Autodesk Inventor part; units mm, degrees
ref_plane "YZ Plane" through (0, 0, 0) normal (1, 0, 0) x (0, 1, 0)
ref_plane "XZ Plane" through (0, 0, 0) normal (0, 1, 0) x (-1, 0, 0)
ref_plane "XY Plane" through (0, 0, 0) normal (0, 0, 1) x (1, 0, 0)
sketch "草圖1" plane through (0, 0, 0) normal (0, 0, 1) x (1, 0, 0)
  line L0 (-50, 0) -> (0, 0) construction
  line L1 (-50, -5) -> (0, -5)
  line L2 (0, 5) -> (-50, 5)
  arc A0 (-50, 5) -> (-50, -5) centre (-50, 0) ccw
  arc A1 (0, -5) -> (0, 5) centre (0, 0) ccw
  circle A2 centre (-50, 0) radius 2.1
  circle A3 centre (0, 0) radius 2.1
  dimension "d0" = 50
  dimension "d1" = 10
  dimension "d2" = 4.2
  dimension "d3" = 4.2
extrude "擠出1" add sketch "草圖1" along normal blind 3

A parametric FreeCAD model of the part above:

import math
import FreeCAD as App
import Part
import Sketcher

doc = App.newDocument("Part")
params = doc.addObject("Spreadsheet::Sheet", "Params")
for row, (alias, value) in enumerate([
    ("sketch1_radius", "5 mm"),
    ("sketch1_diameter", "4.2 mm"),
    ("sketch1_width", "50 mm"),
    ("pad1_length", "3 mm"),
], start=1):
    params.set(f"A{row}", alias)
    params.set(f"B{row}", "=" + value)
    params.setAlias(f"B{row}", alias)

body = doc.addObject("PartDesign::Body", "Body")

sketch1 = body.newObject("Sketcher::SketchObject", "Sketch")
sketch1.AttachmentSupport = (doc.getObject("XY_Plane"), [""])
sketch1.MapMode = "FlatFace"
sketch1.addGeometry(Part.ArcOfCircle(Part.Circle(App.Vector(-50, 0, 0), App.Vector(0, 0, 1), 5), math.radians(90), math.radians(270)), False)
sketch1.addGeometry(Part.LineSegment(App.Vector(-50, -5, 0), App.Vector(0, -5, 0)), False)
sketch1.addGeometry(Part.ArcOfCircle(Part.Circle(App.Vector(0, 0, 0), App.Vector(0, 0, 1), 5), math.radians(-90), math.radians(90)), False)
sketch1.addGeometry(Part.LineSegment(App.Vector(0, 5, 0), App.Vector(-50, 5, 0)), False)
sketch1.addGeometry(Part.Circle(App.Vector(-50, 0, 0), App.Vector(0, 0, 1), 2.1), False)
sketch1.addGeometry(Part.Circle(App.Vector(0, 0, 0), App.Vector(0, 0, 1), 2.1), False)
sketch1.addConstraint(Sketcher.Constraint("Tangent", 0, 2, 1, 1))
sketch1.addConstraint(Sketcher.Constraint("Tangent", 1, 2, 2, 1))
sketch1.addConstraint(Sketcher.Constraint("Tangent", 2, 2, 3, 1))
sketch1.addConstraint(Sketcher.Constraint("Tangent", 3, 2, 0, 1))
sketch1.addConstraint(Sketcher.Constraint("Horizontal", 1))
sketch1.addConstraint(Sketcher.Constraint("Horizontal", 3))
sketch1.addConstraint(Sketcher.Constraint("Coincident", 2, 3, -1, 1))
sketch1.addConstraint(Sketcher.Constraint("Coincident", 5, 3, -1, 1))
sketch1.addConstraint(Sketcher.Constraint("Coincident", 4, 3, 0, 3))
sketch1.addConstraint(Sketcher.Constraint("Equal", 4, 5))
sketch1.addConstraint(Sketcher.Constraint("Radius", 0, 5.0))
sketch1.addConstraint(Sketcher.Constraint("Diameter", 4, 4.2))
sketch1.addConstraint(Sketcher.Constraint("DistanceX", 1, 1, 1, 2, 50.0))
sketch1.setExpression("Constraints[10]", "Params.sketch1_radius")
sketch1.setExpression("Constraints[11]", "Params.sketch1_diameter")
sketch1.setExpression("Constraints[12]", "Params.sketch1_width")
pad1 = body.newObject("PartDesign::Pad", "Pad")
pad1.Profile = sketch1
pad1.setExpression("Length", "Params.pad1_length")

doc.recompute()
